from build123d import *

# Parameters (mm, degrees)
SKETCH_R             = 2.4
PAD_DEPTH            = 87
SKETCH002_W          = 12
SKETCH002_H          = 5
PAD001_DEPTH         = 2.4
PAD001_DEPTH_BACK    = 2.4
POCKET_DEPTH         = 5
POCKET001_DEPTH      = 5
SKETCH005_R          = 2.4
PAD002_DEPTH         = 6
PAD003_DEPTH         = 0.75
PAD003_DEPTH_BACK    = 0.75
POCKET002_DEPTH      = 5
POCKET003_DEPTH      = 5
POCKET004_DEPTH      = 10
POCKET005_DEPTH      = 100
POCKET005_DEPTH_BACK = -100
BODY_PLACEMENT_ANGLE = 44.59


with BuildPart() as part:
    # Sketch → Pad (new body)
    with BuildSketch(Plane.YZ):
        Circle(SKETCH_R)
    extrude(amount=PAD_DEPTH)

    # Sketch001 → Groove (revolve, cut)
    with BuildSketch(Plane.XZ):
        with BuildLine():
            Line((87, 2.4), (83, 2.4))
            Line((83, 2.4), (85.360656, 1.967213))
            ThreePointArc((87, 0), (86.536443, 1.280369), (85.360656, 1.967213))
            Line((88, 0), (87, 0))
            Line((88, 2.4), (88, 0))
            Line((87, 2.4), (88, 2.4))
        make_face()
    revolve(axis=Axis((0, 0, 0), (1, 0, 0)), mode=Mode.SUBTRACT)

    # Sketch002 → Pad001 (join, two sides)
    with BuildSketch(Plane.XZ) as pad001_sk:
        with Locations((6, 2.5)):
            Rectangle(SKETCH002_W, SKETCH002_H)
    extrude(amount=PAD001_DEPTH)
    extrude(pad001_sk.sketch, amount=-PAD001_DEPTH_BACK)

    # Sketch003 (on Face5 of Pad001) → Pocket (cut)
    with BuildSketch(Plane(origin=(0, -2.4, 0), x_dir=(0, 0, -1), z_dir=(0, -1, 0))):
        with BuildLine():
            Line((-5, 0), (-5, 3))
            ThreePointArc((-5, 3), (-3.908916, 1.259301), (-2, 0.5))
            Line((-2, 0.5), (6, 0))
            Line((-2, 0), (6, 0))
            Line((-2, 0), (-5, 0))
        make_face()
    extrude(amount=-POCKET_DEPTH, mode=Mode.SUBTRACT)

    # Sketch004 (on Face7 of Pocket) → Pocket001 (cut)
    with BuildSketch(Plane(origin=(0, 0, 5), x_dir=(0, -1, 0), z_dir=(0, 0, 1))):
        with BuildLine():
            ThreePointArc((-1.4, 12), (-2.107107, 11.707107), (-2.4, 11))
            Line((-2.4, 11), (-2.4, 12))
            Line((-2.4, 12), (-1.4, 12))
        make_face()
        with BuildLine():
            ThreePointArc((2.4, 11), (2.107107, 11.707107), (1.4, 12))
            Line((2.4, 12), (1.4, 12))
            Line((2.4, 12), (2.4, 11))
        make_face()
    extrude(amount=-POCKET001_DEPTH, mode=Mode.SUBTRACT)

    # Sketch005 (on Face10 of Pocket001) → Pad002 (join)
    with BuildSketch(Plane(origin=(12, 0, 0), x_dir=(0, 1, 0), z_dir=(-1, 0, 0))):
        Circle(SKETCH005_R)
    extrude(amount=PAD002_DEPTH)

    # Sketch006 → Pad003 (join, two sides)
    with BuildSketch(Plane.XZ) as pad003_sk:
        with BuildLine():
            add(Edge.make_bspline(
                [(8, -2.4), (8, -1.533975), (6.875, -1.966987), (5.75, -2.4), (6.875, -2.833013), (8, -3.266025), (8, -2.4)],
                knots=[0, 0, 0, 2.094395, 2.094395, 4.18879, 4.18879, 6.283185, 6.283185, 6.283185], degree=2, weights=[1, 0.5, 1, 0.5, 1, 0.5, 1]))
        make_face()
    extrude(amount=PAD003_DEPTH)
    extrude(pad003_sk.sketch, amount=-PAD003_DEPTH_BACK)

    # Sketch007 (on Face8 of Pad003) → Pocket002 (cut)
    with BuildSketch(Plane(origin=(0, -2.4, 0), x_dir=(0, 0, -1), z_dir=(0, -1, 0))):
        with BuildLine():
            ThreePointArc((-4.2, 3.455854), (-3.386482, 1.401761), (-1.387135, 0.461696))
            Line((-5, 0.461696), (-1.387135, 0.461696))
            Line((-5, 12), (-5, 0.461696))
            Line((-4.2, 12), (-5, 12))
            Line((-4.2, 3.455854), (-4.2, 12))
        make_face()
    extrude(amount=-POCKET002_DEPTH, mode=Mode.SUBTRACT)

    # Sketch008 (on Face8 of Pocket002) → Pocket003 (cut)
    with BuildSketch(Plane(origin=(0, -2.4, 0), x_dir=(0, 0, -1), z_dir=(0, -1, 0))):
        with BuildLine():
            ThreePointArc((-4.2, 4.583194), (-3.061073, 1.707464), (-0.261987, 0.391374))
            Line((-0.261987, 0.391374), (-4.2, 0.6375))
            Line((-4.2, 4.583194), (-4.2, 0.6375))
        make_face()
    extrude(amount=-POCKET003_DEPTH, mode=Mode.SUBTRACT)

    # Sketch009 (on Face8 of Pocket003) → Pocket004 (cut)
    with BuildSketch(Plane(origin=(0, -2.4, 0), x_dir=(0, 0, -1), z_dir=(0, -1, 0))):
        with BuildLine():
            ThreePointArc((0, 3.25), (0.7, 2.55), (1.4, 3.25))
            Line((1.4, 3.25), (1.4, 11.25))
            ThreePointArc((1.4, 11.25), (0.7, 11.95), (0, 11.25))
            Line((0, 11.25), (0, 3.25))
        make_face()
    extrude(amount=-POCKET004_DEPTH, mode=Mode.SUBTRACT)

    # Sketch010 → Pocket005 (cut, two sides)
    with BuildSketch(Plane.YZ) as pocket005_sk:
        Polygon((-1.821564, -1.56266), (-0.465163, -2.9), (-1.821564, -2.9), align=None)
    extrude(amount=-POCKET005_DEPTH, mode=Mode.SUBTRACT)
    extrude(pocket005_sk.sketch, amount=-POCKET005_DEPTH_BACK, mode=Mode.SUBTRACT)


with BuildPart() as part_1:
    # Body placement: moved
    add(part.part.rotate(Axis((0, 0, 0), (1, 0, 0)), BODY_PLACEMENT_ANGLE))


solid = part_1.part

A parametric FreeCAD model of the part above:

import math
import FreeCAD as App
import Part
import Sketcher

V = App.Vector
Q = App.Units.Quantity


def add_polygon(sketch, points):
    """Adds a closed chain of lines whose ends are joined by coincident constraints."""
    first, n = sketch.GeometryCount, len(points)
    for a, b in zip(points, points[1:] + points[:1]):
        sketch.addGeometry(Part.LineSegment(App.Vector(*a, 0), App.Vector(*b, 0)), False)
    for i in range(n):
        sketch.addConstraint(Sketcher.Constraint("Coincident", first + i, 2, first + (i + 1) % n, 1))

doc = App.newDocument("Part")
body = doc.addObject("PartDesign::Body", "Body")

sketch1 = body.newObject("Sketcher::SketchObject", "Sketch")
sketch1.AttachmentSupport = (doc.getObject("YZ_Plane"), [""])
sketch1.MapMode = "FlatFace"
sketch1.addGeometry(Part.Circle(V(0, 0, 0), V(0, 0, 1), 2.4), False)
sketch1.addConstraint(Sketcher.Constraint("Coincident", 0, 3, -1, 1))
sketch1.addConstraint(Sketcher.Constraint("Diameter", 0, Q("4.8 mm")))
pad1 = body.newObject("PartDesign::Pad", "Pad")
pad1.Profile = sketch1
pad1.Length = 87

sketch2 = body.newObject("Sketcher::SketchObject", "Sketch001")
sketch2.AttachmentSupport = (doc.getObject("XZ_Plane"), [""])
sketch2.MapMode = "FlatFace"
sketch2.addGeometry(Part.LineSegment(V(83, 2.4, 0), V(85.4, 2, 0)), False)
sketch2.addGeometry(Part.ArcOfCircle(Part.Circle(V(85, 0, 0), V(0, 0, 1), 2), math.radians(0), math.radians(80)), False)
sketch2.addGeometry(Part.LineSegment(V(87, 0, 0), V(88, 0, 0)), False)
sketch2.addGeometry(Part.LineSegment(V(88, 0, 0), V(88, 2.4, 0)), False)
sketch2.addGeometry(Part.LineSegment(V(88, 2.4, 0), V(83, 2.4, 0)), False)
sketch2.addConstraint(Sketcher.Constraint("Tangent", 0, 2, 1, 2))
sketch2.addConstraint(Sketcher.Constraint("Coincident", 1, 1, 2, 1))
sketch2.addConstraint(Sketcher.Constraint("Coincident", 2, 2, 3, 1))
sketch2.addConstraint(Sketcher.Constraint("Coincident", 3, 2, 4, 1))
sketch2.addConstraint(Sketcher.Constraint("Coincident", 4, 2, 0, 1))
sketch2.addConstraint(Sketcher.Constraint("Horizontal", 2))
sketch2.addConstraint(Sketcher.Constraint("Vertical", 3))
sketch2.addConstraint(Sketcher.Constraint("Horizontal", 4))
sketch2.addConstraint(Sketcher.Constraint("PointOnObject", 1, 3, -1))
sketch2.addConstraint(Sketcher.Constraint("PointOnObject", 1, 1, -1))
sketch2.addConstraint(Sketcher.Constraint("Radius", 1, Q("1.999998 mm")))
sketch2.addConstraint(Sketcher.Constraint("DistanceX", 2, 1, 2, 2, Q("1 mm")))
sketch2.addConstraint(Sketcher.Constraint("DistanceX", 4, 2, 4, 1, Q("5 mm")))
sketch2.addConstraint(Sketcher.Constraint("DistanceY", 3, 1, 3, 2, Q("2.4 mm")))
sketch2.addConstraint(Sketcher.Constraint("DistanceX", -1, 1, 1, 3, Q("85.000002 mm")))
groove = body.newObject("PartDesign::Groove", "Groove")
groove.Profile = sketch2
groove.ReferenceAxis = (sketch2, ["H_Axis"])
groove.Angle = 360

sketch3 = body.newObject("Sketcher::SketchObject", "Sketch002")
sketch3.AttachmentSupport = (doc.getObject("XZ_Plane"), [""])
sketch3.MapMode = "FlatFace"
add_polygon(sketch3, [(0, 5), (0, 0), (12, 0), (12, 5)])
sketch3.addConstraint(Sketcher.Constraint("Vertical", 0))
sketch3.addConstraint(Sketcher.Constraint("Horizontal", 1))
sketch3.addConstraint(Sketcher.Constraint("Vertical", 2))
sketch3.addConstraint(Sketcher.Constraint("Horizontal", 3))
sketch3.addConstraint(Sketcher.Constraint("Coincident", 0, 2, -1, 1))
sketch3.addConstraint(Sketcher.Constraint("DistanceX", 1, 1, 1, 2, Q("12 mm")))
sketch3.addConstraint(Sketcher.Constraint("DistanceY", 0, 2, 0, 1, Q("5 mm")))
pad2 = body.newObject("PartDesign::Pad", "Pad001")
pad2.Profile = sketch3
pad2.Type = "TwoLengths"
pad2.Length = 2.4
pad2.Length2 = 2.4

sketch4 = body.newObject("Sketcher::SketchObject", "Sketch003")
sketch4.AttachmentSupport = (doc.getObject("XZ_Plane"), [""])
sketch4.MapMode = "FlatFace"
sketch4.AttachmentOffset = App.Placement(V(0, 0, 2.4), App.Rotation())
sketch4.addGeometry(Part.LineSegment(V(3, 5, 0), V(0, 5, 0)), False)
sketch4.addGeometry(Part.LineSegment(V(0, 5, 0), V(0, -6, 0)), False)
sketch4.addGeometry(Part.LineSegment(V(0, -6, 0), V(0.5, 2, 0)), False)
sketch4.addGeometry(Part.ArcOfCircle(Part.Circle(V(3.8, 1.8, 0), V(0, 0, 1), 3.3), math.radians(104), math.radians(176)), False)
sketch4.addConstraint(Sketcher.Constraint("Coincident", 0, 2, 1, 1))
sketch4.addConstraint(Sketcher.Constraint("Coincident", 1, 2, 2, 1))
sketch4.addConstraint(Sketcher.Constraint("Tangent", 2, 2, 3, 2))
sketch4.addConstraint(Sketcher.Constraint("Coincident", 3, 1, 0, 1))
sketch4.addConstraint(Sketcher.Constraint("Horizontal", 0))
sketch4.addConstraint(Sketcher.Constraint("Vertical", 1))
sketch4.addConstraint(Sketcher.Constraint("PointOnObject", 0, 2, -2))
sketch4.addConstraint(Sketcher.Constraint("DistanceX", 0, 2, 0, 1, Q("3 mm")))
sketch4.addConstraint(Sketcher.Constraint("DistanceY", 1, 2, 1, 1, Q("11 mm")))
sketch4.addConstraint(Sketcher.Constraint("DistanceY", -1, 1, 0, 2, Q("5 mm")))
sketch4.addConstraint(Sketcher.Constraint("DistanceY", -1, 1, 2, 2, Q("2 mm")))
sketch4.addConstraint(Sketcher.Constraint("DistanceX", -1, 1, 2, 2, Q("0.5 mm")))
pocket1 = body.newObject("PartDesign::Pocket", "Pocket")
pocket1.Profile = sketch4
pocket1.Length = 5

sketch5 = body.newObject("Sketcher::SketchObject", "Sketch004")
sketch5.AttachmentSupport = (doc.getObject("XY_Plane"), [""])
sketch5.MapMode = "FlatFace"
sketch5.AttachmentOffset = App.Placement(V(0, 0, 5), App.Rotation())
sketch5.addGeometry(Part.ArcOfCircle(Part.Circle(V(11, 1.4, 0), V(0, 0, 1), 1), math.radians(0), math.radians(90)), False)
sketch5.addGeometry(Part.LineSegment(V(12, 1.4, 0), V(12, 2.4, 0)), False)
sketch5.addGeometry(Part.LineSegment(V(12, 2.4, 0), V(11, 2.4, 0)), False)
sketch5.addGeometry(Part.ArcOfCircle(Part.Circle(V(11, -1.4, 0), V(0, 0, 1), 1), math.radians(-90), math.radians(0)), False)
sketch5.addGeometry(Part.LineSegment(V(11, -2.4, 0), V(12, -2.4, 0)), False)
sketch5.addGeometry(Part.LineSegment(V(12, -2.4, 0), V(12, -1.4, 0)), False)
sketch5.addConstraint(Sketcher.Constraint("Tangent", 0, 1, 1, 1))
sketch5.addConstraint(Sketcher.Constraint("Coincident", 1, 2, 2, 1))
sketch5.addConstraint(Sketcher.Constraint("Tangent", 2, 2, 0, 2))
sketch5.addConstraint(Sketcher.Constraint("Tangent", 3, 1, 4, 1))
sketch5.addConstraint(Sketcher.Constraint("Coincident", 4, 2, 5, 1))
sketch5.addConstraint(Sketcher.Constraint("Tangent", 5, 2, 3, 2))
sketch5.addConstraint(Sketcher.Constraint("Vertical", 1))
sketch5.addConstraint(Sketcher.Constraint("Horizontal", 2))
sketch5.addConstraint(Sketcher.Constraint("Horizontal", 4))
sketch5.addConstraint(Sketcher.Constraint("Vertical", 5))
sketch5.addConstraint(Sketcher.Constraint("Equal", 0, 3))
sketch5.addConstraint(Sketcher.Constraint("Symmetric", 0, 3, 3, 3, -1))
sketch5.addConstraint(Sketcher.Constraint("Radius", 0, Q("0.999999 mm")))
sketch5.addConstraint(Sketcher.Constraint("DistanceX", -1, 1, 0, 3, Q("11.000001 mm")))
sketch5.addConstraint(Sketcher.Constraint("DistanceY", -1, 1, 0, 3, Q("1.400001 mm")))
pocket2 = body.newObject("PartDesign::Pocket", "Pocket001")
pocket2.Profile = sketch5
pocket2.Length = 5

sketch6 = body.newObject("Sketcher::SketchObject", "Sketch005")
sketch6.AttachmentSupport = (doc.getObject("YZ_Plane"), [""])
sketch6.MapMode = "FlatFace"
sketch6.AttachmentOffset = App.Placement(V(0, 0, 12), App.Rotation())
sketch6.addGeometry(Part.Circle(V(0, 0, 0), V(0, 0, 1), 2.4), False)
sketch6.addConstraint(Sketcher.Constraint("Coincident", 0, 3, -1, 1))
sketch6.addConstraint(Sketcher.Constraint("Diameter", 0, Q("4.8 mm")))
pad3 = body.newObject("PartDesign::Pad", "Pad002")
pad3.Profile = sketch6
pad3.Length = 6
pad3.Reversed = True

sketch7 = body.newObject("Sketcher::SketchObject", "Sketch006")
sketch7.AttachmentSupport = (doc.getObject("XZ_Plane"), [""])
sketch7.MapMode = "FlatFace"
sketch7.addGeometry(Part.BSplineCurve([V(8, -2.4, 0), V(8, -1.533975, 0), V(6.875, -1.966987, 0), V(5.75, -2.4, 0), V(6.875, -2.833013, 0), V(8, -3.266025, 0), V(8, -2.4, 0)], [3, 2, 2, 3], [0, 2.094395, 4.18879, 6.283185], False, 2, [1, 0.5, 1, 0.5, 1, 0.5, 1], False), False)
sketch7.addConstraint(Sketcher.Constraint("Block", 0))
pad4 = body.newObject("PartDesign::Pad", "Pad003")
pad4.Profile = sketch7
pad4.Type = "TwoLengths"
pad4.Length = 0.75
pad4.Length2 = 0.75

sketch8 = body.newObject("Sketcher::SketchObject", "Sketch007")
sketch8.AttachmentSupport = (doc.getObject("XZ_Plane"), [""])
sketch8.MapMode = "FlatFace"
sketch8.AttachmentOffset = App.Placement(V(0, 0, 2.4), App.Rotation())
sketch8.addGeometry(Part.ArcOfCircle(Part.Circle(V(3.5, 1.2, 0), V(0, 0, 1), 3), math.radians(90), math.radians(176)), False)
sketch8.addGeometry(Part.LineSegment(V(3.5, 4.2, 0), V(12, 4.2, 0)), False)
sketch8.addGeometry(Part.LineSegment(V(12, 4.2, 0), V(12, 5, 0)), False)
sketch8.addGeometry(Part.LineSegment(V(12, 5, 0), V(0.5, 5, 0)), False)
sketch8.addGeometry(Part.LineSegment(V(0.5, 5, 0), V(0.5, 1.4, 0)), False)
sketch8.addConstraint(Sketcher.Constraint("Tangent", 0, 1, 1, 1))
sketch8.addConstraint(Sketcher.Constraint("Coincident", 1, 2, 2, 1))
sketch8.addConstraint(Sketcher.Constraint("Coincident", 2, 2, 3, 1))
sketch8.addConstraint(Sketcher.Constraint("Coincident", 3, 2, 4, 1))
sketch8.addConstraint(Sketcher.Constraint("Coincident", 4, 2, 0, 2))
sketch8.addConstraint(Sketcher.Constraint("Horizontal", 1))
sketch8.addConstraint(Sketcher.Constraint("Vertical", 2))
sketch8.addConstraint(Sketcher.Constraint("Horizontal", 3))
sketch8.addConstraint(Sketcher.Constraint("Vertical", 4))
sketch8.addConstraint(Sketcher.Constraint("Radius", 0, Q("3 mm")))
sketch8.addConstraint(Sketcher.Constraint("DistanceY", 2, 1, 2, 2, Q("0.8 mm")))
sketch8.addConstraint(Sketcher.Constraint("DistanceX", -1, 1, 1, 2, Q("12 mm")))
sketch8.addConstraint(Sketcher.Constraint("DistanceY", -1, 1, 2, 2, Q("5 mm")))
sketch8.addConstraint(Sketcher.Constraint("DistanceX", 1, 1, 1, 2, Q("8.544146 mm")))
sketch8.addConstraint(Sketcher.Constraint("DistanceX", 3, 2, 3, 1, Q("11.538304 mm")))
pocket3 = body.newObject("PartDesign::Pocket", "Pocket002")
pocket3.Profile = sketch8
pocket3.Length = 5

sketch9 = body.newObject("Sketcher::SketchObject", "Sketch008")
sketch9.AttachmentSupport = (doc.getObject("XZ_Plane"), [""])
sketch9.MapMode = "FlatFace"
sketch9.AttachmentOffset = App.Placement(V(0, 0, 2.4), App.Rotation())
sketch9.addGeometry(Part.ArcOfCircle(Part.Circle(V(4.6, 0, 0), V(0, 0, 1), 4.2), math.radians(90), math.radians(176)), False)
sketch9.addGeometry(Part.LineSegment(V(4.6, 4.2, 0), V(0.6, 4.2, 0)), False)
sketch9.addGeometry(Part.LineSegment(V(0.6, 4.2, 0), V(0.4, 0.3, 0)), False)
sketch9.addConstraint(Sketcher.Constraint("Tangent", 0, 1, 1, 1))
sketch9.addConstraint(Sketcher.Constraint("Coincident", 1, 2, 2, 1))
sketch9.addConstraint(Sketcher.Constraint("Tangent", 2, 2, 0, 2))
sketch9.addConstraint(Sketcher.Constraint("Horizontal", 1))
sketch9.addConstraint(Sketcher.Constraint("PointOnObject", 0, 3, -1))
sketch9.addConstraint(Sketcher.Constraint("Radius", 0, Q("4.200001 mm")))
sketch9.addConstraint(Sketcher.Constraint("DistanceX", -1, 1, 1, 2, Q("0.6375 mm")))
sketch9.addConstraint(Sketcher.Constraint("DistanceX", 1, 2, 1, 1, Q("3.945694 mm")))
pocket4 = body.newObject("PartDesign::Pocket", "Pocket003")
pocket4.Profile = sketch9
pocket4.Length = 5

sketch10 = body.newObject("Sketcher::SketchObject", "Sketch009")
sketch10.AttachmentSupport = (doc.getObject("XZ_Plane"), [""])
sketch10.MapMode = "FlatFace"
sketch10.AttachmentOffset = App.Placement(V(0, 0, 2.4), App.Rotation())
sketch10.addGeometry(Part.ArcOfCircle(Part.Circle(V(3.2, -0.7, 0), V(0, 0, 1), 0.7), math.radians(90), math.radians(270)), False)
sketch10.addGeometry(Part.LineSegment(V(3.2, -1.4, 0), V(11.2, -1.4, 0)), False)
sketch10.addGeometry(Part.ArcOfCircle(Part.Circle(V(11.2, -0.7, 0), V(0, 0, 1), 0.7), math.radians(-90), math.radians(90)), False)
sketch10.addGeometry(Part.LineSegment(V(11.2, 0, 0), V(3.2, 0, 0)), False)
sketch10.addConstraint(Sketcher.Constraint("Tangent", 0, 2, 1, 1))
sketch10.addConstraint(Sketcher.Constraint("Tangent", 1, 2, 2, 1))
sketch10.addConstraint(Sketcher.Constraint("Tangent", 2, 2, 3, 1))
sketch10.addConstraint(Sketcher.Constraint("Tangent", 3, 2, 0, 1))
sketch10.addConstraint(Sketcher.Constraint("Horizontal", 1))
sketch10.addConstraint(Sketcher.Constraint("Horizontal", 3))
sketch10.addConstraint(Sketcher.Constraint("PointOnObject", 2, 2, -1))
sketch10.addConstraint(Sketcher.Constraint("Radius", 0, Q("0.7 mm")))
sketch10.addConstraint(Sketcher.Constraint("DistanceX", 1, 1, 1, 2, Q("8 mm")))
sketch10.addConstraint(Sketcher.Constraint("DistanceX", -1, 1, 0, 3, Q("3.25 mm")))
pocket5 = body.newObject("PartDesign::Pocket", "Pocket004")
pocket5.Profile = sketch10
pocket5.Length = 10

sketch11 = body.newObject("Sketcher::SketchObject", "Sketch010")
sketch11.AttachmentSupport = (doc.getObject("YZ_Plane"), [""])
sketch11.MapMode = "FlatFace"
add_polygon(sketch11, [(-0.5, -2.9), (-1.8, -1.6), (-1.8, -2.9)])
sketch11.addConstraint(Sketcher.Constraint("Vertical", 1))
sketch11.addConstraint(Sketcher.Constraint("Horizontal", 2))
sketch11.addConstraint(Sketcher.Constraint("DistanceY", 1, 2, -1, 1, Q("2.9 mm")))
sketch11.addConstraint(Sketcher.Constraint("DistanceX", 2, 1, 2, 2, Q("1.356401 mm")))
sketch11.addConstraint(Sketcher.Constraint("DistanceY", 1, 2, 1, 1, Q("1.33734 mm")))
sketch11.addConstraint(Sketcher.Constraint("DistanceX", 0, 2, -1, 1, Q("1.821564 mm")))
pocket6 = body.newObject("PartDesign::Pocket", "Pocket005")
pocket6.Profile = sketch11
pocket6.Type = "ThroughAll"
pocket6.Midplane = True
body2 = doc.addObject("PartDesign::Body", "Body001")
doc.recompute()

body.Placement = App.Placement(V(0, 0, 0), App.Rotation(V(1, 0, 0), 44.59))
boolean = body2.newObject("PartDesign::Boolean", "Boolean")
boolean.Type = "Fuse"
boolean.addObjects([body])

doc.recompute()
